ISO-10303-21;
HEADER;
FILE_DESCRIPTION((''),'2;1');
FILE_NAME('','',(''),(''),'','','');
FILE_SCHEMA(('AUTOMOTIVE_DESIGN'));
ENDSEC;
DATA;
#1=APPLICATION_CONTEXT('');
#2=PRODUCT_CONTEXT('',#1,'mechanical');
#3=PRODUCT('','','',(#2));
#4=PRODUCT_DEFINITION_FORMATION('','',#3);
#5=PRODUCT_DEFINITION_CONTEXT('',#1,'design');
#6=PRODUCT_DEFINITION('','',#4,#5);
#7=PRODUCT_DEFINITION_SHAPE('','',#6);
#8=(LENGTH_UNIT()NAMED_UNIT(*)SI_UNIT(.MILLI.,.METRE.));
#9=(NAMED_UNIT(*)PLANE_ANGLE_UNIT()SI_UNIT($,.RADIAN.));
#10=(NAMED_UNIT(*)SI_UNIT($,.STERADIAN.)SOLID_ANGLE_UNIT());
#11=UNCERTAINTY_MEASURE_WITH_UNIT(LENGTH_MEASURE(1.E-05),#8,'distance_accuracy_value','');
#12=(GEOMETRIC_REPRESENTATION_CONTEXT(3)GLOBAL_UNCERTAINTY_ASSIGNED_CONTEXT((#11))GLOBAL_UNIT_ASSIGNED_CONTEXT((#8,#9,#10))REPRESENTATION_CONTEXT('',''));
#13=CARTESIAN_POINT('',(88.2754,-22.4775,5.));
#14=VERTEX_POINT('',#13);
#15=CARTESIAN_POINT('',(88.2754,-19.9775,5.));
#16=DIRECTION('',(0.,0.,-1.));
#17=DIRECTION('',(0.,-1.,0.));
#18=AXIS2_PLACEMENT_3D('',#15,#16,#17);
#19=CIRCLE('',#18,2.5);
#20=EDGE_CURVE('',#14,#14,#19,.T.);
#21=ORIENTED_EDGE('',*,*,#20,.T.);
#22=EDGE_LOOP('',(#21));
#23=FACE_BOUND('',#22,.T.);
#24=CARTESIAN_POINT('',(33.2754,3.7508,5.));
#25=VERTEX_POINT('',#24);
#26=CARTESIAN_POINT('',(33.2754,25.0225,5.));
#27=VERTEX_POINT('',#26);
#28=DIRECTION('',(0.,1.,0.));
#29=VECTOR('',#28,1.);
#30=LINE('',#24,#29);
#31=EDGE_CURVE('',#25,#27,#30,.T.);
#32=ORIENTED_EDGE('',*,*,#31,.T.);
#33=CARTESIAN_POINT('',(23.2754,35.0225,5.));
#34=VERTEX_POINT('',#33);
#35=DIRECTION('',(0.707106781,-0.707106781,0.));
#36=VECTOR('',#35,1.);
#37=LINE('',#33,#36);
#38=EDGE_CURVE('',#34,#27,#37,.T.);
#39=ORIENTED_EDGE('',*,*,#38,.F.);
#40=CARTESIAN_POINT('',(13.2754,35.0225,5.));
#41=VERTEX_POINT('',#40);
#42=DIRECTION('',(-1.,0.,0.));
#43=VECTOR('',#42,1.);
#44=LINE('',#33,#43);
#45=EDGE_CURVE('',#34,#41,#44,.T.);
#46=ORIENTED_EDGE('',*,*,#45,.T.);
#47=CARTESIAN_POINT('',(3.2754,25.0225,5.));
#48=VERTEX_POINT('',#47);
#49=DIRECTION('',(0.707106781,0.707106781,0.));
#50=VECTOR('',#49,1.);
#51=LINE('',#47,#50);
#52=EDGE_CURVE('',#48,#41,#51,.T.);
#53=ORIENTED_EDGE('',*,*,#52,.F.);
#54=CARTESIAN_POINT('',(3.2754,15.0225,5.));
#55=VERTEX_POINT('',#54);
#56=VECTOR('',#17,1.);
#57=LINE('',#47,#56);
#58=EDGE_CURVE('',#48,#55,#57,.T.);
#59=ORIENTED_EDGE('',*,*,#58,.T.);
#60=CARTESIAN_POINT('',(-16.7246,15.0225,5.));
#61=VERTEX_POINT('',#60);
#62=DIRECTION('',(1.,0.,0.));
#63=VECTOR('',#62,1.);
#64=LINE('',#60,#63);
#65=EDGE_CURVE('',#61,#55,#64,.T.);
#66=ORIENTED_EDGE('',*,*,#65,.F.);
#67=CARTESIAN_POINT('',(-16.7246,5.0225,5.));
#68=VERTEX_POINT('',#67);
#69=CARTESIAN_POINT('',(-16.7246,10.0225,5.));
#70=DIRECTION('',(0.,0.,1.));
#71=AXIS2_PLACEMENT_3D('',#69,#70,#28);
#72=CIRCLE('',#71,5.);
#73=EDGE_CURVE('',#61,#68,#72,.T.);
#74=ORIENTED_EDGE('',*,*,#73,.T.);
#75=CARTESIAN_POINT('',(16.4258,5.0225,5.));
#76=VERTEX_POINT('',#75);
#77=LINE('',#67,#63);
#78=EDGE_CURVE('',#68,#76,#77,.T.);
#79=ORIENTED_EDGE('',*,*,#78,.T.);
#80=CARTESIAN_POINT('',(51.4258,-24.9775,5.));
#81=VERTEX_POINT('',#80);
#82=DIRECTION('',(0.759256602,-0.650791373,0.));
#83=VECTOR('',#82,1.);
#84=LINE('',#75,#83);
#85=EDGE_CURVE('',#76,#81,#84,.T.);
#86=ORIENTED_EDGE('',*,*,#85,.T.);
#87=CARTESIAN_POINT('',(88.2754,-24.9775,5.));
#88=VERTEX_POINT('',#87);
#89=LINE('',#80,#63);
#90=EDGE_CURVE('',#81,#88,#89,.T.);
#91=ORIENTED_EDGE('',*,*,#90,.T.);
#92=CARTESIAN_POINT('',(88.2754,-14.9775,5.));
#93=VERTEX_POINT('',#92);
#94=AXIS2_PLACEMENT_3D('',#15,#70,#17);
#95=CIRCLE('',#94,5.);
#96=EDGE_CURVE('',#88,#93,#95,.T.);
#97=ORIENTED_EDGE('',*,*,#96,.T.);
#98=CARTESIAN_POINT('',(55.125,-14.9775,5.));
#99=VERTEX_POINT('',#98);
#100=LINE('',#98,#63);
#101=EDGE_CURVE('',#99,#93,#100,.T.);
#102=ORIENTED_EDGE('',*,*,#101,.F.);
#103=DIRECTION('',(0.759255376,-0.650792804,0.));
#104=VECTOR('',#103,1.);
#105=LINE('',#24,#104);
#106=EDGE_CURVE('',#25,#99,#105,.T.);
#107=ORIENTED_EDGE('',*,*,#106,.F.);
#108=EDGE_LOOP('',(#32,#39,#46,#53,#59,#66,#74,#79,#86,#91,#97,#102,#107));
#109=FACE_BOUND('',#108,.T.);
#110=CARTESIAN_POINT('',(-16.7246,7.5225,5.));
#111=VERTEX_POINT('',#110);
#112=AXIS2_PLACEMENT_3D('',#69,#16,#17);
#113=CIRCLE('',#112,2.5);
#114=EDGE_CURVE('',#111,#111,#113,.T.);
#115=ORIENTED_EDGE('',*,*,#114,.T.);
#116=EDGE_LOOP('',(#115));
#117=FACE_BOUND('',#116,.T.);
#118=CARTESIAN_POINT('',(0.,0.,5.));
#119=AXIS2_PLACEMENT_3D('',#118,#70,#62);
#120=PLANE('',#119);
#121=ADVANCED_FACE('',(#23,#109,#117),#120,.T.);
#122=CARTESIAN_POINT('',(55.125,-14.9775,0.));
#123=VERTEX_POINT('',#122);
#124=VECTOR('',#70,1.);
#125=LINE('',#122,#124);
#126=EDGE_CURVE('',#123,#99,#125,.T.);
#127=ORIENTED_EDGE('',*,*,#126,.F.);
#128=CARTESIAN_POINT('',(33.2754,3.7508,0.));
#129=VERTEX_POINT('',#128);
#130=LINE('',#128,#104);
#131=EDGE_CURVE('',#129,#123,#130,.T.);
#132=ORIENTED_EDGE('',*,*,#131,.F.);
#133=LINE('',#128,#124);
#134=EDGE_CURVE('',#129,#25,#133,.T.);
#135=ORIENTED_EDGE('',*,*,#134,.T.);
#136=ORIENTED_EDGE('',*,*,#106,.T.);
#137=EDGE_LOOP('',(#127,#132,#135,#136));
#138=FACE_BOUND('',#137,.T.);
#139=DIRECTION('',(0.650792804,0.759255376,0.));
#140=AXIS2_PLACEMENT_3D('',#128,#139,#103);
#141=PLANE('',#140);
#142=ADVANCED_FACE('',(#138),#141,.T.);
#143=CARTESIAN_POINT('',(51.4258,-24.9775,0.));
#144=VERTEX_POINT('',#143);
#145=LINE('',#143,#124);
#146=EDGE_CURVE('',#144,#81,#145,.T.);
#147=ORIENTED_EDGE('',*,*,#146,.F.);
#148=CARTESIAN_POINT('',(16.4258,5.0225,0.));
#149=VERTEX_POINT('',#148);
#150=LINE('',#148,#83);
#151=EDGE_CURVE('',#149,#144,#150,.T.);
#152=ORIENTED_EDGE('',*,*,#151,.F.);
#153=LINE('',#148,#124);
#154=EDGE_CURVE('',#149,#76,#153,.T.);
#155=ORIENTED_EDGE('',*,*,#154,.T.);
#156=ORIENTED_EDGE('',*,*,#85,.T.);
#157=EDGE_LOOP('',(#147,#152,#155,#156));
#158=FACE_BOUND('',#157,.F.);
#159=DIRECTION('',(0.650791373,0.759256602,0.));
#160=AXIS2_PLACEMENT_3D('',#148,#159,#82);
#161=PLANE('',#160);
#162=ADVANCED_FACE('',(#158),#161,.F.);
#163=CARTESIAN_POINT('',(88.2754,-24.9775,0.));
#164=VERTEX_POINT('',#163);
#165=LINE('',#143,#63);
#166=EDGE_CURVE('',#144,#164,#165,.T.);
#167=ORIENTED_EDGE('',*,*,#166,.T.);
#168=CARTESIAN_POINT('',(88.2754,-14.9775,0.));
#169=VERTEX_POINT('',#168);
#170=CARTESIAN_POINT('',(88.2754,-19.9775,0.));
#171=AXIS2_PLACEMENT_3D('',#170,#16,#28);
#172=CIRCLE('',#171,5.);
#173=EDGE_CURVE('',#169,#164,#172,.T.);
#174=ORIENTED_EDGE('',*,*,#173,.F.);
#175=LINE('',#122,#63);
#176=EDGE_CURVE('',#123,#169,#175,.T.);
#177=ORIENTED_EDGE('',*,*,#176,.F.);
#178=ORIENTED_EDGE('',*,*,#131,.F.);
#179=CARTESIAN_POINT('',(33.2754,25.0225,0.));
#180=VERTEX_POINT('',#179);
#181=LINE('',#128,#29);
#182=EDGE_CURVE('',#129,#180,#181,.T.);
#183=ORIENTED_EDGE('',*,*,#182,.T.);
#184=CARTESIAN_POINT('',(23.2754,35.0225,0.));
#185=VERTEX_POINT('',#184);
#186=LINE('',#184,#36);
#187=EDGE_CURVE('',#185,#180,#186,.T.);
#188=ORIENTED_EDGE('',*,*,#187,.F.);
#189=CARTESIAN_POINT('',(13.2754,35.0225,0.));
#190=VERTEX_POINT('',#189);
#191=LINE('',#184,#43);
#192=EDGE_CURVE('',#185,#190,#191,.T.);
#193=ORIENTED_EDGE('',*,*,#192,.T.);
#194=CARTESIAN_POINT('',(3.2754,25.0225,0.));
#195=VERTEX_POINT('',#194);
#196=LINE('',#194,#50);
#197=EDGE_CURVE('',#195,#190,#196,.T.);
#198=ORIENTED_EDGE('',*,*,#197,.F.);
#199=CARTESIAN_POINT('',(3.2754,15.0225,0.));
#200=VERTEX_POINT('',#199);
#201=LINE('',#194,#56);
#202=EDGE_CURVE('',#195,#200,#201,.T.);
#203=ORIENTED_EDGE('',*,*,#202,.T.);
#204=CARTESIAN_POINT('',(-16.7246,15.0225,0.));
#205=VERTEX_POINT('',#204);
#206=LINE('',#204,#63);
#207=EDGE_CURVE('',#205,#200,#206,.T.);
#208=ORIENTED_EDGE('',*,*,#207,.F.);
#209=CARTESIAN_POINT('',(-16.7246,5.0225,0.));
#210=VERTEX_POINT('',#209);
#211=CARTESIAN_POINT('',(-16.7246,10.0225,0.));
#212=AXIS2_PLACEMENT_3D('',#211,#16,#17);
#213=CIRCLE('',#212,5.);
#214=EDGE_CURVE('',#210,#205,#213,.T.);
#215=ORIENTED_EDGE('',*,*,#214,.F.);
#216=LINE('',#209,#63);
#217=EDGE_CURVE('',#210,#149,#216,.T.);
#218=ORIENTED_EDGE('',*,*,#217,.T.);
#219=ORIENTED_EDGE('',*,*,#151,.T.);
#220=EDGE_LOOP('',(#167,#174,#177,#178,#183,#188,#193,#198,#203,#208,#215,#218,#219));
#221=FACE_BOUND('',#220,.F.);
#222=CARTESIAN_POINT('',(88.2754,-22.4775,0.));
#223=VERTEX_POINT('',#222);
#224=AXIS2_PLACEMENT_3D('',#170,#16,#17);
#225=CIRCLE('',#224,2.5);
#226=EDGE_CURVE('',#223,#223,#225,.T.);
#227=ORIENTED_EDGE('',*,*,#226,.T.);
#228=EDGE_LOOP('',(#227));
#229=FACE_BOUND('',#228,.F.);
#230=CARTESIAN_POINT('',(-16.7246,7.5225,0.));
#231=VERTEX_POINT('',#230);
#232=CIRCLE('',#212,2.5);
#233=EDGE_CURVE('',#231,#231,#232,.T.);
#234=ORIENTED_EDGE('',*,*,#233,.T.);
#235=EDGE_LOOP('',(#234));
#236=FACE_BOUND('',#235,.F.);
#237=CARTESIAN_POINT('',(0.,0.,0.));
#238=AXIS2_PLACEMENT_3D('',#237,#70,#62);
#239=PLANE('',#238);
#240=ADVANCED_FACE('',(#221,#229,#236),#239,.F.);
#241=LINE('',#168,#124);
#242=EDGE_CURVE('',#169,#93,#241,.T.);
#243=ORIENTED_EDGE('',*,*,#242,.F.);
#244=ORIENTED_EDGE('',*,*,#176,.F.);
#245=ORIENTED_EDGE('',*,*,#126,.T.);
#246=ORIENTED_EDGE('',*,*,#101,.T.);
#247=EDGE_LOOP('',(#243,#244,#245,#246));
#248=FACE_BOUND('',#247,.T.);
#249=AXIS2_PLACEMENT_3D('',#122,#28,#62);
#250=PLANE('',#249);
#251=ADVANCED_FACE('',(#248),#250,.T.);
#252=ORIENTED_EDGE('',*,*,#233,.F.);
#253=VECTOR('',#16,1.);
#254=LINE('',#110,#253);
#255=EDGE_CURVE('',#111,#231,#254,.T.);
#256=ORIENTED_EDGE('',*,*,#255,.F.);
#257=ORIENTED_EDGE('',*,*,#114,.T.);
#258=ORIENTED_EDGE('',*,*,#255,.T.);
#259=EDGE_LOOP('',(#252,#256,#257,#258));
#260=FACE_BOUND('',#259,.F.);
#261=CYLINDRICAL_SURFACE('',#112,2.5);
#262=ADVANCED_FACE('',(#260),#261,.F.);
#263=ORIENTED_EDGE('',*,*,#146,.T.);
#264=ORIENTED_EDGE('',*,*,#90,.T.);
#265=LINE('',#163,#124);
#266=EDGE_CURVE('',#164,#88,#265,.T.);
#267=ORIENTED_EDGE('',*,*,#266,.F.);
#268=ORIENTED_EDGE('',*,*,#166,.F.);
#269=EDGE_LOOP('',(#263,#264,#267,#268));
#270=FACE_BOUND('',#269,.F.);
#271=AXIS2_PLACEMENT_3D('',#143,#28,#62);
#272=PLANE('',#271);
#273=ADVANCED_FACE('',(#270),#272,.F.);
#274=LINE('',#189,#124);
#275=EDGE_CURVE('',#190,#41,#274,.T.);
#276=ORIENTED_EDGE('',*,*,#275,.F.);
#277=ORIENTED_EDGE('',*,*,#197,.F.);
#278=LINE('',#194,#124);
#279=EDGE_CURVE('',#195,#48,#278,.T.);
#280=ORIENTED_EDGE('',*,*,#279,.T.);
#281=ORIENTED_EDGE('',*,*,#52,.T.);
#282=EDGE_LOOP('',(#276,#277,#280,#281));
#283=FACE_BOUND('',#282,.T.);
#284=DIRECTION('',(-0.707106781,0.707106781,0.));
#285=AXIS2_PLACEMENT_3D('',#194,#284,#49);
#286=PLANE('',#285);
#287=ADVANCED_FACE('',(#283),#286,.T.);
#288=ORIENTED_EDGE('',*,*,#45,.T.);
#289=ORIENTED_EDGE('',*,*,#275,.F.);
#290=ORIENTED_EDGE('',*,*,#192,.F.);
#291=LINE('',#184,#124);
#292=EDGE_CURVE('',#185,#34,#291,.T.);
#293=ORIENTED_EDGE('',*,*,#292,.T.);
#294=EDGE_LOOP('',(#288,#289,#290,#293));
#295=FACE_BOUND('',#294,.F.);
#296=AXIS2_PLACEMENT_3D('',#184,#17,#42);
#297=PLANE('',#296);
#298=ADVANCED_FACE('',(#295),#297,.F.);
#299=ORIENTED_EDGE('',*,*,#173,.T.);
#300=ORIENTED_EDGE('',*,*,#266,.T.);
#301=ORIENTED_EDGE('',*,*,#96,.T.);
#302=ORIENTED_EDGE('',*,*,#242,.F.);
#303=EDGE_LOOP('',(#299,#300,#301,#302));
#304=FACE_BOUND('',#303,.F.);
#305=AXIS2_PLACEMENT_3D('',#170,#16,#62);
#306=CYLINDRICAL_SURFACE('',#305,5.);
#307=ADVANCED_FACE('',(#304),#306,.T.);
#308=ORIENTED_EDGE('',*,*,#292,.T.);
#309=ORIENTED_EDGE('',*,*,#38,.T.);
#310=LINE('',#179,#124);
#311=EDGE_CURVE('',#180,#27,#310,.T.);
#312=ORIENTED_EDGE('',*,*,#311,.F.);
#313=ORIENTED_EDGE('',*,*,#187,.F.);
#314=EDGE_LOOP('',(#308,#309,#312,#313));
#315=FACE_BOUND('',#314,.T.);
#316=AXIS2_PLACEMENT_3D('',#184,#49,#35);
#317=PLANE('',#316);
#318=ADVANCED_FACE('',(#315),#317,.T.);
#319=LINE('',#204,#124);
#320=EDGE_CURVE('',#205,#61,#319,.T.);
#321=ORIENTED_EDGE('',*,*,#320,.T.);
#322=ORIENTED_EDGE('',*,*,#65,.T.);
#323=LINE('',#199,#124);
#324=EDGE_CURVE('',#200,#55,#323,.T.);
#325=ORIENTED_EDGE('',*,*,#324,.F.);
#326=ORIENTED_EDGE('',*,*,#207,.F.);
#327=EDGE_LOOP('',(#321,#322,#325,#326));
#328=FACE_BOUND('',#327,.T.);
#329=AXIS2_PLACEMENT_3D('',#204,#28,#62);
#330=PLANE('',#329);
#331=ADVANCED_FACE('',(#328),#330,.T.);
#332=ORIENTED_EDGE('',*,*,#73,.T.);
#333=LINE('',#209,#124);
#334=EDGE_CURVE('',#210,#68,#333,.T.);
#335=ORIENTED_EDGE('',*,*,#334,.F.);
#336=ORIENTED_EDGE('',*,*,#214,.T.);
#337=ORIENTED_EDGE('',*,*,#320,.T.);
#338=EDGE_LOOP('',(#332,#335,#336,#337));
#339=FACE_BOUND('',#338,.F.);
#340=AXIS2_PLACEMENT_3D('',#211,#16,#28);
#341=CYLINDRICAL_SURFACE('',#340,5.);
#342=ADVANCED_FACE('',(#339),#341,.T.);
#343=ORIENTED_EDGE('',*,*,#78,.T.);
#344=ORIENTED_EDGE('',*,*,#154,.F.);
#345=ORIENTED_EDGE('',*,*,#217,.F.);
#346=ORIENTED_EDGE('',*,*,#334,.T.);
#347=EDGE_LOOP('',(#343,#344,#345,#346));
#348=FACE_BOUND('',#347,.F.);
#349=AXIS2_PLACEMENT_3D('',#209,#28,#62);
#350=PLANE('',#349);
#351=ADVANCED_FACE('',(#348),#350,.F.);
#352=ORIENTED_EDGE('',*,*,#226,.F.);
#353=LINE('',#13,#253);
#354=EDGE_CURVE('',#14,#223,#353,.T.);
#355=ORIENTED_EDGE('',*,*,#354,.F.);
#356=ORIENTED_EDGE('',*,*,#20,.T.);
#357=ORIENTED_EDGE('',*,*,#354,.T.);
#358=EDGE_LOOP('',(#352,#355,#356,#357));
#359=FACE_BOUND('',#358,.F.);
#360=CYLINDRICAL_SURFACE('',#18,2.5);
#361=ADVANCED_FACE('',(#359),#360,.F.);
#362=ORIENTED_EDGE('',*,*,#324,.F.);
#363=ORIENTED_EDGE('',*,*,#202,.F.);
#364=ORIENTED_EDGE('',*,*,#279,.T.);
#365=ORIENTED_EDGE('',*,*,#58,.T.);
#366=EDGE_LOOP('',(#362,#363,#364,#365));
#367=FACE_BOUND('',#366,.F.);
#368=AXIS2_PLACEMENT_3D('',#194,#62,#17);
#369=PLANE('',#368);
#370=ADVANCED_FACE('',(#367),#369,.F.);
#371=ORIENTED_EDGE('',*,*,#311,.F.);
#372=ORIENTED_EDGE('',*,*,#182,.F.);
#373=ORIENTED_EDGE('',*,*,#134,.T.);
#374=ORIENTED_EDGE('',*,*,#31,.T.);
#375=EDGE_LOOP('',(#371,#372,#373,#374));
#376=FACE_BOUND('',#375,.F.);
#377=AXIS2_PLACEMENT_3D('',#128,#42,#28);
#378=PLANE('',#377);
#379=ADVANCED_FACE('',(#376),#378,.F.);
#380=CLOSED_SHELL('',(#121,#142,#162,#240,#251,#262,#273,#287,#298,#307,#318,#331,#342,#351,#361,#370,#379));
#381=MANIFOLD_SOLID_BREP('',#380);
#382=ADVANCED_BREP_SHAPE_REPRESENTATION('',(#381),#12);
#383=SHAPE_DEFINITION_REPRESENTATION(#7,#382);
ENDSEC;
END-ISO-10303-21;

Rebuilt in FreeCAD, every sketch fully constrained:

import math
import FreeCAD as App
import Part
import Sketcher

V = App.Vector
Q = App.Units.Quantity

doc = App.newDocument("Part")
body = doc.addObject("PartDesign::Body", "Body")

# Sketch on XY plane
sketch1 = body.newObject("Sketcher::SketchObject", "Sketch")
sketch1.AttachmentSupport = (doc.getObject("XY_Plane"), [""])
sketch1.MapMode = "FlatFace"
sketch1.addGeometry([
    Part.LineSegment(V(55, -15, 0), V(33, 4, 0)),  # 0
    Part.LineSegment(V(33, 4, 0), V(33, 25, 0)),  # 1
    Part.LineSegment(V(33, 25, 0), V(23, 35, 0)),  # 2
    Part.LineSegment(V(23, 35, 0), V(13, 35, 0)),  # 3
    Part.LineSegment(V(13, 35, 0), V(3, 25, 0)),  # 4
    Part.LineSegment(V(3, 25, 0), V(3, 15, 0)),  # 5
    Part.LineSegment(V(3, 15, 0), V(-17, 15, 0)),  # 6
    Part.ArcOfCircle(Part.Circle(V(-17, 10, 0), V(0, 0, 1), 5), math.radians(90), math.radians(270)),  # 7
    Part.LineSegment(V(-17, 5, 0), V(16, 5, 0)),  # 8
    Part.LineSegment(V(16, 5, 0), V(51, -25, 0)),  # 9
    Part.LineSegment(V(51, -25, 0), V(88, -25, 0)),  # 10
    Part.ArcOfCircle(Part.Circle(V(88, -20, 0), V(0, 0, 1), 5), math.radians(-90), math.radians(90)),  # 11
    Part.LineSegment(V(88, -15, 0), V(55, -15, 0)),  # 12
], False)
sketch1.addConstraint([
    Sketcher.Constraint("Coincident", 0, 2, 1, 1),
    Sketcher.Constraint("Coincident", 1, 2, 2, 1),
    Sketcher.Constraint("Coincident", 2, 2, 3, 1),
    Sketcher.Constraint("Coincident", 3, 2, 4, 1),
    Sketcher.Constraint("Coincident", 4, 2, 5, 1),
    Sketcher.Constraint("Coincident", 5, 2, 6, 1),
    Sketcher.Constraint("Tangent", 6, 2, 7, 1),
    Sketcher.Constraint("Tangent", 7, 2, 8, 1),
    Sketcher.Constraint("Coincident", 8, 2, 9, 1),
    Sketcher.Constraint("Coincident", 9, 2, 10, 1),
    Sketcher.Constraint("Tangent", 10, 2, 11, 1),
    Sketcher.Constraint("Tangent", 11, 2, 12, 1),
    Sketcher.Constraint("Coincident", 12, 2, 0, 1),
    Sketcher.Constraint("Vertical", 1),
    Sketcher.Constraint("Horizontal", 3),
    Sketcher.Constraint("Vertical", 5),
    Sketcher.Constraint("Horizontal", 6),
    Sketcher.Constraint("Horizontal", 8),
    Sketcher.Constraint("Horizontal", 10),
    Sketcher.Constraint("Horizontal", 12),
    Sketcher.Constraint("Equal", 7, 11),
    Sketcher.Constraint("Perpendicular", 2, 4),
    Sketcher.Constraint("Parallel", 0, 9),
    Sketcher.Constraint("Horizontal", 1, 2, 4, 2),
    Sketcher.Constraint("Equal", 8, 12),
    Sketcher.Constraint("Equal", 3, 5),
    Sketcher.Constraint("Equal", 2, 4),
    Sketcher.Constraint("Radius", 7, Q("5 mm")),
    Sketcher.Constraint("DistanceX", 3, 2, 3, 1, Q("10 mm")),
    Sketcher.Constraint("DistanceX", 6, 2, 6, 1, Q("20 mm")),
    Sketcher.Constraint("DistanceY", 11, 3, 7, 3, Q("30 mm")),
    Sketcher.Constraint("DistanceX", 2, 2, 1, 2, Q("10 mm")),
    Sketcher.Constraint("DistanceX", 8, 2, 9, 2, Q("35 mm")),
    Sketcher.Constraint("DistanceX", 7, 3, 11, 3, Q("105 mm")),
    Sketcher.Constraint("DistanceX", 8, 1, 8, 2, Q("33.1504 mm")),
    Sketcher.Constraint("DistanceX", -1, 1, 12, 2, Q("55.125 mm")),
    Sketcher.Constraint("DistanceY", -1, 1, 7, 3, Q("10.0225 mm")),
])
pad1 = body.newObject("PartDesign::Pad", "Pad")
pad1.Profile = sketch1
pad1.Length = 5

# Sketch on XY plane
sketch2 = body.newObject("Sketcher::SketchObject", "Sketch001")
sketch2.AttachmentSupport = (doc.getObject("XY_Plane"), [""])
sketch2.MapMode = "FlatFace"
sketch2.AttachmentOffset = App.Placement(V(0, 0, 5), App.Rotation())
sketch2.addGeometry([
    Part.Circle(V(-16.7, 10, 0), V(0, 0, 1), 2.5),
    Part.Circle(V(88.3, -20, 0), V(0, 0, 1), 2.5),
], False)
sketch2.addConstraint([
    Sketcher.Constraint("Equal", 0, 1),
    Sketcher.Constraint("Diameter", 0, Q("5 mm")),
    Sketcher.Constraint("DistanceX", 0, 3, 1, 3, Q("105 mm")),
    Sketcher.Constraint("DistanceY", 1, 3, 0, 3, Q("30 mm")),
    Sketcher.Constraint("DistanceX", 0, 3, -1, 1, Q("16.7246 mm")),
    Sketcher.Constraint("DistanceY", -1, 1, 0, 3, Q("10.0225 mm")),
])
doc.recompute()
hole = body.newObject("PartDesign::Hole", "Hole")
hole.Profile = sketch2
hole.ThreadType = "None"
hole.Diameter = 5
hole.DepthType = "ThroughAll"

doc.recompute()
